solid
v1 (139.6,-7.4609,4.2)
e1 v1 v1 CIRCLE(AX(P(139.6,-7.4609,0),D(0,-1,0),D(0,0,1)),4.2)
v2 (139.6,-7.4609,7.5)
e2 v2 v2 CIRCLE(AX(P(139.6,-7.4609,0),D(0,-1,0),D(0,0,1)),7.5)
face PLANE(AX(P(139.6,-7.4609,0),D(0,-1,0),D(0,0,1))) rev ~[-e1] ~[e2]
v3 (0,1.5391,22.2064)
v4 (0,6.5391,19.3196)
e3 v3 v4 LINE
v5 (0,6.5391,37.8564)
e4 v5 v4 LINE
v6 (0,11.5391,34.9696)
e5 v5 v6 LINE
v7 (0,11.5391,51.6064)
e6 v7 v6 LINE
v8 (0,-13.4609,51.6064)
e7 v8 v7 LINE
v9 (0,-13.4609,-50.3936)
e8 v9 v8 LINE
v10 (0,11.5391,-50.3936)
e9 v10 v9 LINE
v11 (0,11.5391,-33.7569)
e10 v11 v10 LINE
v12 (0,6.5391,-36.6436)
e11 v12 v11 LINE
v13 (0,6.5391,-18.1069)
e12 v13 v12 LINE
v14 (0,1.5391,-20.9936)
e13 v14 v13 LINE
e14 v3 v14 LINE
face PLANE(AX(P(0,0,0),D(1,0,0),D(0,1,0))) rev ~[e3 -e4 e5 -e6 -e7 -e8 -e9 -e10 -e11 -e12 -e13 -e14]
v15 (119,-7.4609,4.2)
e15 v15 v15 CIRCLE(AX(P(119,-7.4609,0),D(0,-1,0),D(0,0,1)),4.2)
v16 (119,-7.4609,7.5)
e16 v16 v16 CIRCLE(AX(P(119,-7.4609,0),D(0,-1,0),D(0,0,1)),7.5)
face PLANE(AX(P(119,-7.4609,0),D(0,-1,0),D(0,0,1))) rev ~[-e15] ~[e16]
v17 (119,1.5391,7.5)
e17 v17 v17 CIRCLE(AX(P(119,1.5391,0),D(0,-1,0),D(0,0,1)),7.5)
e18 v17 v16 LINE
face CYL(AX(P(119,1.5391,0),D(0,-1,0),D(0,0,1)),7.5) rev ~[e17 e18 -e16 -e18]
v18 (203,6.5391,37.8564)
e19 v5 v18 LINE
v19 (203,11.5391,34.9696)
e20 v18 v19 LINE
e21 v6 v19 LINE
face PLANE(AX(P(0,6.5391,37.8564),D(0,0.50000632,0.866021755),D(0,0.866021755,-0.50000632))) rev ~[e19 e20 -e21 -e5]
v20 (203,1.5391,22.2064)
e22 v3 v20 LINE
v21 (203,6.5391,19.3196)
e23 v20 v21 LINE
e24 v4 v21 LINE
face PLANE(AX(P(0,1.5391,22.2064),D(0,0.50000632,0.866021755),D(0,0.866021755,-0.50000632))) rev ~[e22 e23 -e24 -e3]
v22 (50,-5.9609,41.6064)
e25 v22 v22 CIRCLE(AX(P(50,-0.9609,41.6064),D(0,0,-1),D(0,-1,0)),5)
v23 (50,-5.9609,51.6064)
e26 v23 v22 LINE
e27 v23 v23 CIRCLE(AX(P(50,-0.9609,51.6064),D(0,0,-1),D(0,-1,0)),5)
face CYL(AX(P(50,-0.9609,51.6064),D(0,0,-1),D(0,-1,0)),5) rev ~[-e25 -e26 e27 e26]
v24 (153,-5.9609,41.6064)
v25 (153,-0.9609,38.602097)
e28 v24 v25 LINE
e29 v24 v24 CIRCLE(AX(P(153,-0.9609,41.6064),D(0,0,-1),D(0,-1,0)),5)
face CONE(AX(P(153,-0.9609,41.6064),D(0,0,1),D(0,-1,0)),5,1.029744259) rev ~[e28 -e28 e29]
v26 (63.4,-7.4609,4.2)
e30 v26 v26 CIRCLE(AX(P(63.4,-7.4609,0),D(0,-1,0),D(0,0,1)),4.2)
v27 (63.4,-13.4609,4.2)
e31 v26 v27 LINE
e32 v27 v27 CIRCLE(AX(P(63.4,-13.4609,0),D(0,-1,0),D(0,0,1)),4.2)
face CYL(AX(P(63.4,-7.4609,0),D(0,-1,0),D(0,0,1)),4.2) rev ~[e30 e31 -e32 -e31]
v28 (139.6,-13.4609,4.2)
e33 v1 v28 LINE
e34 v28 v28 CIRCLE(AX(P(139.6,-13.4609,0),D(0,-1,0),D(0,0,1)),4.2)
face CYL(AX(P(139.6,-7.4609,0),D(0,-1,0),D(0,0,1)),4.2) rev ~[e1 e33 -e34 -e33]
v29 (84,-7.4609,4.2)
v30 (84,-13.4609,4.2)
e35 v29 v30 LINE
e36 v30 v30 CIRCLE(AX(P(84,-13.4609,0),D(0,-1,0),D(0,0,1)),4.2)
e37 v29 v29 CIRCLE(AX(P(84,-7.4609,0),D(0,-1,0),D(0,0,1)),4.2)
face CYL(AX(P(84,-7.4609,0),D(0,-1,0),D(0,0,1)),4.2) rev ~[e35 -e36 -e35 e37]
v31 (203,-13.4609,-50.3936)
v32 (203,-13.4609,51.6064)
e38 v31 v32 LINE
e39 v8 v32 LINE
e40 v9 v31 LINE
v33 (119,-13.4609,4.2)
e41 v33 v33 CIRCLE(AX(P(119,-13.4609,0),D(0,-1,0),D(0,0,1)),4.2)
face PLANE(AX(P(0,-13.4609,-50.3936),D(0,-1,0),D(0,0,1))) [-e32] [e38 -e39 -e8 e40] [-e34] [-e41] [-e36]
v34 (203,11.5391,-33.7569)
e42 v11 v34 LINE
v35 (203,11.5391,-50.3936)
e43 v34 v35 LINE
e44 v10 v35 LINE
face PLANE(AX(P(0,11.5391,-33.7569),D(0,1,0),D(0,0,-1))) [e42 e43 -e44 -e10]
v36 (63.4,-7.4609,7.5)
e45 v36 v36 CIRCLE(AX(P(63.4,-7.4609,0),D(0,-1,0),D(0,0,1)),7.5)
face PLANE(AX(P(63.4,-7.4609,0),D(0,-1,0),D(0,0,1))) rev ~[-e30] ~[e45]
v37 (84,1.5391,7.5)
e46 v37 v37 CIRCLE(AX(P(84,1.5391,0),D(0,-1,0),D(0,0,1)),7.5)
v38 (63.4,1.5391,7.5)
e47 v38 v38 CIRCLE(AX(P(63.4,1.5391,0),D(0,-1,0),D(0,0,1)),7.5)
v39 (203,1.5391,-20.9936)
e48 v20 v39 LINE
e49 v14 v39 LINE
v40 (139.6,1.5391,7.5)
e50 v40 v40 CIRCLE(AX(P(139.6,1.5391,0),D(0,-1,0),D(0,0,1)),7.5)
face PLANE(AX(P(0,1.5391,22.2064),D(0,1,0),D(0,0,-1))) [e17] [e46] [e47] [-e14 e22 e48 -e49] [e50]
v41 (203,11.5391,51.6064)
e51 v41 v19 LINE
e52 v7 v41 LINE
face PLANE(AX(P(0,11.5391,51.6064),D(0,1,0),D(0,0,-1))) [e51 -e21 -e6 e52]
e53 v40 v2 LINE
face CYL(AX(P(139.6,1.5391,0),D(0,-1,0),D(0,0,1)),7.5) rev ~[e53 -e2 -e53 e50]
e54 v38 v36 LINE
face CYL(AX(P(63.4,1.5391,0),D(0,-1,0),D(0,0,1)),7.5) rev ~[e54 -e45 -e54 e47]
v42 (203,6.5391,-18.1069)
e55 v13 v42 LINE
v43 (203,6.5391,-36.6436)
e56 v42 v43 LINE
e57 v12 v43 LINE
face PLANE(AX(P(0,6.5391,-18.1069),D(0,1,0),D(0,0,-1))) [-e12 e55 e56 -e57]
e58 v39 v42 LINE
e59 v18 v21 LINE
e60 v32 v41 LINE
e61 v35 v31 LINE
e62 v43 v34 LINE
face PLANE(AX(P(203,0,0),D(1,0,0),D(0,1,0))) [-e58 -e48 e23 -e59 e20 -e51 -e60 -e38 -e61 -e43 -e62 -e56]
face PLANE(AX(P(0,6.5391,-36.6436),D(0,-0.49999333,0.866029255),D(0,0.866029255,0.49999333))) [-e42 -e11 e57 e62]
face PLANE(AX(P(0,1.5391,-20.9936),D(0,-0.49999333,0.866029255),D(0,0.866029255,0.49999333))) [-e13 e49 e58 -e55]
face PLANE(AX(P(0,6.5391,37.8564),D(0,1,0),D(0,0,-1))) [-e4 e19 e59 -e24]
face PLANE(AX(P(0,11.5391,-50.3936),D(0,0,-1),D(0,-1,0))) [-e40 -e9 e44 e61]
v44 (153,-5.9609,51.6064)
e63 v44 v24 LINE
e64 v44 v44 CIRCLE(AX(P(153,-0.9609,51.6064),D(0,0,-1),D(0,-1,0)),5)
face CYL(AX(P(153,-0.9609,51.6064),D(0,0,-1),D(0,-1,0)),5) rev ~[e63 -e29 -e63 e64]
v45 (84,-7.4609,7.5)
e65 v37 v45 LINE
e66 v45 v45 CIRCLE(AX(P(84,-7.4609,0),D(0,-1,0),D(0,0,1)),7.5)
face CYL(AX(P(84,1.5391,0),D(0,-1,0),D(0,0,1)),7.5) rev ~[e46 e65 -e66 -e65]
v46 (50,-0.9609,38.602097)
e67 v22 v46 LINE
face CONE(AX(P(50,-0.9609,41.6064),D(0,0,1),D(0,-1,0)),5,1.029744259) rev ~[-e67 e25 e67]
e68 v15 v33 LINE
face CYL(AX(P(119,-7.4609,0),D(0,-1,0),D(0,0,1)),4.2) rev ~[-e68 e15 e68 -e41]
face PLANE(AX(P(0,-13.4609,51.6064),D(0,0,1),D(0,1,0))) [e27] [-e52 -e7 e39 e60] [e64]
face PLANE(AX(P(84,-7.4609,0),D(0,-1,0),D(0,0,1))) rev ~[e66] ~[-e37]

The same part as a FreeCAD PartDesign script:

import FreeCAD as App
import Part
import Sketcher

V = App.Vector
Q = App.Units.Quantity


def add_polygon(sketch, points):
    """Adds a closed chain of lines whose ends are joined by coincident constraints."""
    first, n = sketch.GeometryCount, len(points)
    for a, b in zip(points, points[1:] + points[:1]):
        sketch.addGeometry(Part.LineSegment(App.Vector(*a, 0), App.Vector(*b, 0)), False)
    for i in range(n):
        sketch.addConstraint(Sketcher.Constraint("Coincident", first + i, 2, first + (i + 1) % n, 1))

doc = App.newDocument("Part")
body = doc.addObject("PartDesign::Body", "Body")

# Sketch on YZ plane
sketch1 = doc.addObject("Sketcher::SketchObject", "Sketch")
body.addObject(sketch1)
sketch1.AttachmentSupport = (doc.YZ_Plane, [""])
sketch1.MapMode = "FlatFace"
add_polygon(sketch1, [(11.5391, 51.6064), (-13.4609, 51.6064), (-13.4609, -50.3936), (11.5391, -50.3936), (11.5391, -33.7569), (6.5391, -36.6436), (6.5391, -18.1069), (1.5391, -20.9936), (1.5391, 22.2064), (6.5391, 19.3196), (6.5391, 37.8564), (11.5391, 34.9696)])  # lines 0-11
sketch1.addConstraint([
    Sketcher.Constraint("Horizontal", 0),
    Sketcher.Constraint("Vertical", 1),
    Sketcher.Constraint("Horizontal", 2),
    Sketcher.Constraint("Vertical", 3),
    Sketcher.Constraint("Vertical", 5),
    Sketcher.Constraint("Vertical", 7),
    Sketcher.Constraint("Vertical", 9),
    Sketcher.Constraint("Vertical", 11),
    Sketcher.Constraint("Parallel", 4, 6),
    Sketcher.Constraint("Parallel", 8, 10),
    Sketcher.Constraint("Vertical", 5, 2, 8, 2),
    Sketcher.Constraint("Vertical", 3, 2, 10, 2),
    Sketcher.Constraint("Equal", 5, 9),
    Sketcher.Constraint("Equal", 3, 11),
    Sketcher.Constraint("Equal", 4, 6),
    Sketcher.Constraint("Equal", 6, 8),
    Sketcher.Constraint("DistanceX", 0, 2, 0, 1, Q("25 mm")),
    Sketcher.Constraint("DistanceY", 1, 2, 1, 1, Q("102 mm")),
    Sketcher.Constraint("Angle", 8, Q("-30.0004 deg")),
    Sketcher.Constraint("DistanceY", 7, 1, 7, 2, Q("43.2 mm")),
    Sketcher.Constraint("DistanceX", 4, 2, 3, 2, Q("5 mm")),
    Sketcher.Constraint("DistanceY", 2, 2, 4, 2, Q("13.75 mm")),
    Sketcher.Constraint("DistanceX", 0, 2, -1, 1, Q("13.461 mm")),
    Sketcher.Constraint("DistanceY", 3, 2, -1, 1, Q("33.757 mm")),
])
pad1 = doc.addObject("PartDesign::Pad", "Pad")
body.addObject(pad1)
pad1.Profile = sketch1
pad1.Length = 203

# Sketch on XZ plane
sketch2 = doc.addObject("Sketcher::SketchObject", "Sketch001")
body.addObject(sketch2)
sketch2.AttachmentSupport = (doc.XZ_Plane, [""])
sketch2.MapMode = "FlatFace"
sketch2.AttachmentOffset = App.Placement(V(0, 0, -1.5391), App.Rotation())
sketch2.addGeometry([
    Part.Circle(V(63.4, 0, 0), V(0, 0, 1), 4.2),
    Part.Circle(V(139.6, 0, 0), V(0, 0, 1), 4.2),
], False)
sketch2.addConstraint([
    Sketcher.Constraint("Equal", 0, 1),
    Sketcher.Constraint("PointOnObject", 0, 3, -1),
    Sketcher.Constraint("PointOnObject", 1, 3, -1),
    Sketcher.Constraint("Diameter", 0, Q("8.4 mm")),
    Sketcher.Constraint("DistanceX", -1, 1, 0, 3, Q("63.4 mm")),
    Sketcher.Constraint("DistanceX", -1, 1, 1, 3, Q("139.6 mm")),
])
doc.recompute()
hole = doc.addObject("PartDesign::Hole", "Hole")
body.addObject(hole)
hole.Profile = sketch2
hole.ThreadType = "None"
hole.Diameter = 8.4
hole.DepthType = "ThroughAll"
hole.HoleCutType = "Counterbore"
hole.HoleCutDiameter = 15
hole.HoleCutDepth = 9
hole.Reversed = True

# Sketch on XZ plane
sketch3 = doc.addObject("Sketcher::SketchObject", "Sketch002")
body.addObject(sketch3)
sketch3.AttachmentSupport = (doc.XZ_Plane, [""])
sketch3.MapMode = "FlatFace"
sketch3.AttachmentOffset = App.Placement(V(0, 0, -1.5391), App.Rotation())
sketch3.addGeometry([
    Part.Circle(V(84, 0, 0), V(0, 0, 1), 4.2),
    Part.Circle(V(119, 0, 0), V(0, 0, 1), 4.2),
], False)
sketch3.addConstraint([
    Sketcher.Constraint("Equal", 0, 1),
    Sketcher.Constraint("PointOnObject", 0, 3, -1),
    Sketcher.Constraint("PointOnObject", 1, 3, -1),
    Sketcher.Constraint("Diameter", 0, Q("8.4 mm")),
    Sketcher.Constraint("DistanceX", -1, 1, 0, 3, Q("84 mm")),
    Sketcher.Constraint("DistanceX", -1, 1, 1, 3, Q("119 mm")),
])
doc.recompute()
hole2 = doc.addObject("PartDesign::Hole", "Hole001")
body.addObject(hole2)
hole2.Profile = sketch3
hole2.ThreadType = "None"
hole2.Diameter = 8.4
hole2.DepthType = "ThroughAll"
hole2.HoleCutType = "Counterbore"
hole2.HoleCutDiameter = 15
hole2.HoleCutDepth = 9
hole2.Reversed = True

# Sketch on XY plane
sketch4 = doc.addObject("Sketcher::SketchObject", "Sketch003")
body.addObject(sketch4)
sketch4.AttachmentSupport = (doc.XY_Plane, [""])
sketch4.MapMode = "FlatFace"
sketch4.AttachmentOffset = App.Placement(V(0, 0, 51.6064), App.Rotation())
sketch4.addGeometry([
    Part.Circle(V(50, -0.9609, 0), V(0, 0, 1), 5),
    Part.Circle(V(153, -0.9609, 0), V(0, 0, 1), 5),
], False)
sketch4.addConstraint([
    Sketcher.Constraint("Equal", 0, 1),
    Sketcher.Constraint("Horizontal", 0, 3, 1, 3),
    Sketcher.Constraint("Diameter", 0, Q("10 mm")),
    Sketcher.Constraint("DistanceX", -1, 1, 0, 3, Q("50 mm")),
    Sketcher.Constraint("DistanceX", -1, 1, 1, 3, Q("153 mm")),
    Sketcher.Constraint("DistanceY", 0, 3, -1, 1, Q("0.961 mm")),
])
doc.recompute()
hole3 = doc.addObject("PartDesign::Hole", "Hole002")
body.addObject(hole3)
hole3.Profile = sketch4
hole3.ThreadType = "None"
hole3.Diameter = 10
hole3.DepthType = "Dimension"
hole3.Depth = 10
hole3.DrillPoint = "Angled"
hole3.DrillPointAngle = 118

doc.recompute()
